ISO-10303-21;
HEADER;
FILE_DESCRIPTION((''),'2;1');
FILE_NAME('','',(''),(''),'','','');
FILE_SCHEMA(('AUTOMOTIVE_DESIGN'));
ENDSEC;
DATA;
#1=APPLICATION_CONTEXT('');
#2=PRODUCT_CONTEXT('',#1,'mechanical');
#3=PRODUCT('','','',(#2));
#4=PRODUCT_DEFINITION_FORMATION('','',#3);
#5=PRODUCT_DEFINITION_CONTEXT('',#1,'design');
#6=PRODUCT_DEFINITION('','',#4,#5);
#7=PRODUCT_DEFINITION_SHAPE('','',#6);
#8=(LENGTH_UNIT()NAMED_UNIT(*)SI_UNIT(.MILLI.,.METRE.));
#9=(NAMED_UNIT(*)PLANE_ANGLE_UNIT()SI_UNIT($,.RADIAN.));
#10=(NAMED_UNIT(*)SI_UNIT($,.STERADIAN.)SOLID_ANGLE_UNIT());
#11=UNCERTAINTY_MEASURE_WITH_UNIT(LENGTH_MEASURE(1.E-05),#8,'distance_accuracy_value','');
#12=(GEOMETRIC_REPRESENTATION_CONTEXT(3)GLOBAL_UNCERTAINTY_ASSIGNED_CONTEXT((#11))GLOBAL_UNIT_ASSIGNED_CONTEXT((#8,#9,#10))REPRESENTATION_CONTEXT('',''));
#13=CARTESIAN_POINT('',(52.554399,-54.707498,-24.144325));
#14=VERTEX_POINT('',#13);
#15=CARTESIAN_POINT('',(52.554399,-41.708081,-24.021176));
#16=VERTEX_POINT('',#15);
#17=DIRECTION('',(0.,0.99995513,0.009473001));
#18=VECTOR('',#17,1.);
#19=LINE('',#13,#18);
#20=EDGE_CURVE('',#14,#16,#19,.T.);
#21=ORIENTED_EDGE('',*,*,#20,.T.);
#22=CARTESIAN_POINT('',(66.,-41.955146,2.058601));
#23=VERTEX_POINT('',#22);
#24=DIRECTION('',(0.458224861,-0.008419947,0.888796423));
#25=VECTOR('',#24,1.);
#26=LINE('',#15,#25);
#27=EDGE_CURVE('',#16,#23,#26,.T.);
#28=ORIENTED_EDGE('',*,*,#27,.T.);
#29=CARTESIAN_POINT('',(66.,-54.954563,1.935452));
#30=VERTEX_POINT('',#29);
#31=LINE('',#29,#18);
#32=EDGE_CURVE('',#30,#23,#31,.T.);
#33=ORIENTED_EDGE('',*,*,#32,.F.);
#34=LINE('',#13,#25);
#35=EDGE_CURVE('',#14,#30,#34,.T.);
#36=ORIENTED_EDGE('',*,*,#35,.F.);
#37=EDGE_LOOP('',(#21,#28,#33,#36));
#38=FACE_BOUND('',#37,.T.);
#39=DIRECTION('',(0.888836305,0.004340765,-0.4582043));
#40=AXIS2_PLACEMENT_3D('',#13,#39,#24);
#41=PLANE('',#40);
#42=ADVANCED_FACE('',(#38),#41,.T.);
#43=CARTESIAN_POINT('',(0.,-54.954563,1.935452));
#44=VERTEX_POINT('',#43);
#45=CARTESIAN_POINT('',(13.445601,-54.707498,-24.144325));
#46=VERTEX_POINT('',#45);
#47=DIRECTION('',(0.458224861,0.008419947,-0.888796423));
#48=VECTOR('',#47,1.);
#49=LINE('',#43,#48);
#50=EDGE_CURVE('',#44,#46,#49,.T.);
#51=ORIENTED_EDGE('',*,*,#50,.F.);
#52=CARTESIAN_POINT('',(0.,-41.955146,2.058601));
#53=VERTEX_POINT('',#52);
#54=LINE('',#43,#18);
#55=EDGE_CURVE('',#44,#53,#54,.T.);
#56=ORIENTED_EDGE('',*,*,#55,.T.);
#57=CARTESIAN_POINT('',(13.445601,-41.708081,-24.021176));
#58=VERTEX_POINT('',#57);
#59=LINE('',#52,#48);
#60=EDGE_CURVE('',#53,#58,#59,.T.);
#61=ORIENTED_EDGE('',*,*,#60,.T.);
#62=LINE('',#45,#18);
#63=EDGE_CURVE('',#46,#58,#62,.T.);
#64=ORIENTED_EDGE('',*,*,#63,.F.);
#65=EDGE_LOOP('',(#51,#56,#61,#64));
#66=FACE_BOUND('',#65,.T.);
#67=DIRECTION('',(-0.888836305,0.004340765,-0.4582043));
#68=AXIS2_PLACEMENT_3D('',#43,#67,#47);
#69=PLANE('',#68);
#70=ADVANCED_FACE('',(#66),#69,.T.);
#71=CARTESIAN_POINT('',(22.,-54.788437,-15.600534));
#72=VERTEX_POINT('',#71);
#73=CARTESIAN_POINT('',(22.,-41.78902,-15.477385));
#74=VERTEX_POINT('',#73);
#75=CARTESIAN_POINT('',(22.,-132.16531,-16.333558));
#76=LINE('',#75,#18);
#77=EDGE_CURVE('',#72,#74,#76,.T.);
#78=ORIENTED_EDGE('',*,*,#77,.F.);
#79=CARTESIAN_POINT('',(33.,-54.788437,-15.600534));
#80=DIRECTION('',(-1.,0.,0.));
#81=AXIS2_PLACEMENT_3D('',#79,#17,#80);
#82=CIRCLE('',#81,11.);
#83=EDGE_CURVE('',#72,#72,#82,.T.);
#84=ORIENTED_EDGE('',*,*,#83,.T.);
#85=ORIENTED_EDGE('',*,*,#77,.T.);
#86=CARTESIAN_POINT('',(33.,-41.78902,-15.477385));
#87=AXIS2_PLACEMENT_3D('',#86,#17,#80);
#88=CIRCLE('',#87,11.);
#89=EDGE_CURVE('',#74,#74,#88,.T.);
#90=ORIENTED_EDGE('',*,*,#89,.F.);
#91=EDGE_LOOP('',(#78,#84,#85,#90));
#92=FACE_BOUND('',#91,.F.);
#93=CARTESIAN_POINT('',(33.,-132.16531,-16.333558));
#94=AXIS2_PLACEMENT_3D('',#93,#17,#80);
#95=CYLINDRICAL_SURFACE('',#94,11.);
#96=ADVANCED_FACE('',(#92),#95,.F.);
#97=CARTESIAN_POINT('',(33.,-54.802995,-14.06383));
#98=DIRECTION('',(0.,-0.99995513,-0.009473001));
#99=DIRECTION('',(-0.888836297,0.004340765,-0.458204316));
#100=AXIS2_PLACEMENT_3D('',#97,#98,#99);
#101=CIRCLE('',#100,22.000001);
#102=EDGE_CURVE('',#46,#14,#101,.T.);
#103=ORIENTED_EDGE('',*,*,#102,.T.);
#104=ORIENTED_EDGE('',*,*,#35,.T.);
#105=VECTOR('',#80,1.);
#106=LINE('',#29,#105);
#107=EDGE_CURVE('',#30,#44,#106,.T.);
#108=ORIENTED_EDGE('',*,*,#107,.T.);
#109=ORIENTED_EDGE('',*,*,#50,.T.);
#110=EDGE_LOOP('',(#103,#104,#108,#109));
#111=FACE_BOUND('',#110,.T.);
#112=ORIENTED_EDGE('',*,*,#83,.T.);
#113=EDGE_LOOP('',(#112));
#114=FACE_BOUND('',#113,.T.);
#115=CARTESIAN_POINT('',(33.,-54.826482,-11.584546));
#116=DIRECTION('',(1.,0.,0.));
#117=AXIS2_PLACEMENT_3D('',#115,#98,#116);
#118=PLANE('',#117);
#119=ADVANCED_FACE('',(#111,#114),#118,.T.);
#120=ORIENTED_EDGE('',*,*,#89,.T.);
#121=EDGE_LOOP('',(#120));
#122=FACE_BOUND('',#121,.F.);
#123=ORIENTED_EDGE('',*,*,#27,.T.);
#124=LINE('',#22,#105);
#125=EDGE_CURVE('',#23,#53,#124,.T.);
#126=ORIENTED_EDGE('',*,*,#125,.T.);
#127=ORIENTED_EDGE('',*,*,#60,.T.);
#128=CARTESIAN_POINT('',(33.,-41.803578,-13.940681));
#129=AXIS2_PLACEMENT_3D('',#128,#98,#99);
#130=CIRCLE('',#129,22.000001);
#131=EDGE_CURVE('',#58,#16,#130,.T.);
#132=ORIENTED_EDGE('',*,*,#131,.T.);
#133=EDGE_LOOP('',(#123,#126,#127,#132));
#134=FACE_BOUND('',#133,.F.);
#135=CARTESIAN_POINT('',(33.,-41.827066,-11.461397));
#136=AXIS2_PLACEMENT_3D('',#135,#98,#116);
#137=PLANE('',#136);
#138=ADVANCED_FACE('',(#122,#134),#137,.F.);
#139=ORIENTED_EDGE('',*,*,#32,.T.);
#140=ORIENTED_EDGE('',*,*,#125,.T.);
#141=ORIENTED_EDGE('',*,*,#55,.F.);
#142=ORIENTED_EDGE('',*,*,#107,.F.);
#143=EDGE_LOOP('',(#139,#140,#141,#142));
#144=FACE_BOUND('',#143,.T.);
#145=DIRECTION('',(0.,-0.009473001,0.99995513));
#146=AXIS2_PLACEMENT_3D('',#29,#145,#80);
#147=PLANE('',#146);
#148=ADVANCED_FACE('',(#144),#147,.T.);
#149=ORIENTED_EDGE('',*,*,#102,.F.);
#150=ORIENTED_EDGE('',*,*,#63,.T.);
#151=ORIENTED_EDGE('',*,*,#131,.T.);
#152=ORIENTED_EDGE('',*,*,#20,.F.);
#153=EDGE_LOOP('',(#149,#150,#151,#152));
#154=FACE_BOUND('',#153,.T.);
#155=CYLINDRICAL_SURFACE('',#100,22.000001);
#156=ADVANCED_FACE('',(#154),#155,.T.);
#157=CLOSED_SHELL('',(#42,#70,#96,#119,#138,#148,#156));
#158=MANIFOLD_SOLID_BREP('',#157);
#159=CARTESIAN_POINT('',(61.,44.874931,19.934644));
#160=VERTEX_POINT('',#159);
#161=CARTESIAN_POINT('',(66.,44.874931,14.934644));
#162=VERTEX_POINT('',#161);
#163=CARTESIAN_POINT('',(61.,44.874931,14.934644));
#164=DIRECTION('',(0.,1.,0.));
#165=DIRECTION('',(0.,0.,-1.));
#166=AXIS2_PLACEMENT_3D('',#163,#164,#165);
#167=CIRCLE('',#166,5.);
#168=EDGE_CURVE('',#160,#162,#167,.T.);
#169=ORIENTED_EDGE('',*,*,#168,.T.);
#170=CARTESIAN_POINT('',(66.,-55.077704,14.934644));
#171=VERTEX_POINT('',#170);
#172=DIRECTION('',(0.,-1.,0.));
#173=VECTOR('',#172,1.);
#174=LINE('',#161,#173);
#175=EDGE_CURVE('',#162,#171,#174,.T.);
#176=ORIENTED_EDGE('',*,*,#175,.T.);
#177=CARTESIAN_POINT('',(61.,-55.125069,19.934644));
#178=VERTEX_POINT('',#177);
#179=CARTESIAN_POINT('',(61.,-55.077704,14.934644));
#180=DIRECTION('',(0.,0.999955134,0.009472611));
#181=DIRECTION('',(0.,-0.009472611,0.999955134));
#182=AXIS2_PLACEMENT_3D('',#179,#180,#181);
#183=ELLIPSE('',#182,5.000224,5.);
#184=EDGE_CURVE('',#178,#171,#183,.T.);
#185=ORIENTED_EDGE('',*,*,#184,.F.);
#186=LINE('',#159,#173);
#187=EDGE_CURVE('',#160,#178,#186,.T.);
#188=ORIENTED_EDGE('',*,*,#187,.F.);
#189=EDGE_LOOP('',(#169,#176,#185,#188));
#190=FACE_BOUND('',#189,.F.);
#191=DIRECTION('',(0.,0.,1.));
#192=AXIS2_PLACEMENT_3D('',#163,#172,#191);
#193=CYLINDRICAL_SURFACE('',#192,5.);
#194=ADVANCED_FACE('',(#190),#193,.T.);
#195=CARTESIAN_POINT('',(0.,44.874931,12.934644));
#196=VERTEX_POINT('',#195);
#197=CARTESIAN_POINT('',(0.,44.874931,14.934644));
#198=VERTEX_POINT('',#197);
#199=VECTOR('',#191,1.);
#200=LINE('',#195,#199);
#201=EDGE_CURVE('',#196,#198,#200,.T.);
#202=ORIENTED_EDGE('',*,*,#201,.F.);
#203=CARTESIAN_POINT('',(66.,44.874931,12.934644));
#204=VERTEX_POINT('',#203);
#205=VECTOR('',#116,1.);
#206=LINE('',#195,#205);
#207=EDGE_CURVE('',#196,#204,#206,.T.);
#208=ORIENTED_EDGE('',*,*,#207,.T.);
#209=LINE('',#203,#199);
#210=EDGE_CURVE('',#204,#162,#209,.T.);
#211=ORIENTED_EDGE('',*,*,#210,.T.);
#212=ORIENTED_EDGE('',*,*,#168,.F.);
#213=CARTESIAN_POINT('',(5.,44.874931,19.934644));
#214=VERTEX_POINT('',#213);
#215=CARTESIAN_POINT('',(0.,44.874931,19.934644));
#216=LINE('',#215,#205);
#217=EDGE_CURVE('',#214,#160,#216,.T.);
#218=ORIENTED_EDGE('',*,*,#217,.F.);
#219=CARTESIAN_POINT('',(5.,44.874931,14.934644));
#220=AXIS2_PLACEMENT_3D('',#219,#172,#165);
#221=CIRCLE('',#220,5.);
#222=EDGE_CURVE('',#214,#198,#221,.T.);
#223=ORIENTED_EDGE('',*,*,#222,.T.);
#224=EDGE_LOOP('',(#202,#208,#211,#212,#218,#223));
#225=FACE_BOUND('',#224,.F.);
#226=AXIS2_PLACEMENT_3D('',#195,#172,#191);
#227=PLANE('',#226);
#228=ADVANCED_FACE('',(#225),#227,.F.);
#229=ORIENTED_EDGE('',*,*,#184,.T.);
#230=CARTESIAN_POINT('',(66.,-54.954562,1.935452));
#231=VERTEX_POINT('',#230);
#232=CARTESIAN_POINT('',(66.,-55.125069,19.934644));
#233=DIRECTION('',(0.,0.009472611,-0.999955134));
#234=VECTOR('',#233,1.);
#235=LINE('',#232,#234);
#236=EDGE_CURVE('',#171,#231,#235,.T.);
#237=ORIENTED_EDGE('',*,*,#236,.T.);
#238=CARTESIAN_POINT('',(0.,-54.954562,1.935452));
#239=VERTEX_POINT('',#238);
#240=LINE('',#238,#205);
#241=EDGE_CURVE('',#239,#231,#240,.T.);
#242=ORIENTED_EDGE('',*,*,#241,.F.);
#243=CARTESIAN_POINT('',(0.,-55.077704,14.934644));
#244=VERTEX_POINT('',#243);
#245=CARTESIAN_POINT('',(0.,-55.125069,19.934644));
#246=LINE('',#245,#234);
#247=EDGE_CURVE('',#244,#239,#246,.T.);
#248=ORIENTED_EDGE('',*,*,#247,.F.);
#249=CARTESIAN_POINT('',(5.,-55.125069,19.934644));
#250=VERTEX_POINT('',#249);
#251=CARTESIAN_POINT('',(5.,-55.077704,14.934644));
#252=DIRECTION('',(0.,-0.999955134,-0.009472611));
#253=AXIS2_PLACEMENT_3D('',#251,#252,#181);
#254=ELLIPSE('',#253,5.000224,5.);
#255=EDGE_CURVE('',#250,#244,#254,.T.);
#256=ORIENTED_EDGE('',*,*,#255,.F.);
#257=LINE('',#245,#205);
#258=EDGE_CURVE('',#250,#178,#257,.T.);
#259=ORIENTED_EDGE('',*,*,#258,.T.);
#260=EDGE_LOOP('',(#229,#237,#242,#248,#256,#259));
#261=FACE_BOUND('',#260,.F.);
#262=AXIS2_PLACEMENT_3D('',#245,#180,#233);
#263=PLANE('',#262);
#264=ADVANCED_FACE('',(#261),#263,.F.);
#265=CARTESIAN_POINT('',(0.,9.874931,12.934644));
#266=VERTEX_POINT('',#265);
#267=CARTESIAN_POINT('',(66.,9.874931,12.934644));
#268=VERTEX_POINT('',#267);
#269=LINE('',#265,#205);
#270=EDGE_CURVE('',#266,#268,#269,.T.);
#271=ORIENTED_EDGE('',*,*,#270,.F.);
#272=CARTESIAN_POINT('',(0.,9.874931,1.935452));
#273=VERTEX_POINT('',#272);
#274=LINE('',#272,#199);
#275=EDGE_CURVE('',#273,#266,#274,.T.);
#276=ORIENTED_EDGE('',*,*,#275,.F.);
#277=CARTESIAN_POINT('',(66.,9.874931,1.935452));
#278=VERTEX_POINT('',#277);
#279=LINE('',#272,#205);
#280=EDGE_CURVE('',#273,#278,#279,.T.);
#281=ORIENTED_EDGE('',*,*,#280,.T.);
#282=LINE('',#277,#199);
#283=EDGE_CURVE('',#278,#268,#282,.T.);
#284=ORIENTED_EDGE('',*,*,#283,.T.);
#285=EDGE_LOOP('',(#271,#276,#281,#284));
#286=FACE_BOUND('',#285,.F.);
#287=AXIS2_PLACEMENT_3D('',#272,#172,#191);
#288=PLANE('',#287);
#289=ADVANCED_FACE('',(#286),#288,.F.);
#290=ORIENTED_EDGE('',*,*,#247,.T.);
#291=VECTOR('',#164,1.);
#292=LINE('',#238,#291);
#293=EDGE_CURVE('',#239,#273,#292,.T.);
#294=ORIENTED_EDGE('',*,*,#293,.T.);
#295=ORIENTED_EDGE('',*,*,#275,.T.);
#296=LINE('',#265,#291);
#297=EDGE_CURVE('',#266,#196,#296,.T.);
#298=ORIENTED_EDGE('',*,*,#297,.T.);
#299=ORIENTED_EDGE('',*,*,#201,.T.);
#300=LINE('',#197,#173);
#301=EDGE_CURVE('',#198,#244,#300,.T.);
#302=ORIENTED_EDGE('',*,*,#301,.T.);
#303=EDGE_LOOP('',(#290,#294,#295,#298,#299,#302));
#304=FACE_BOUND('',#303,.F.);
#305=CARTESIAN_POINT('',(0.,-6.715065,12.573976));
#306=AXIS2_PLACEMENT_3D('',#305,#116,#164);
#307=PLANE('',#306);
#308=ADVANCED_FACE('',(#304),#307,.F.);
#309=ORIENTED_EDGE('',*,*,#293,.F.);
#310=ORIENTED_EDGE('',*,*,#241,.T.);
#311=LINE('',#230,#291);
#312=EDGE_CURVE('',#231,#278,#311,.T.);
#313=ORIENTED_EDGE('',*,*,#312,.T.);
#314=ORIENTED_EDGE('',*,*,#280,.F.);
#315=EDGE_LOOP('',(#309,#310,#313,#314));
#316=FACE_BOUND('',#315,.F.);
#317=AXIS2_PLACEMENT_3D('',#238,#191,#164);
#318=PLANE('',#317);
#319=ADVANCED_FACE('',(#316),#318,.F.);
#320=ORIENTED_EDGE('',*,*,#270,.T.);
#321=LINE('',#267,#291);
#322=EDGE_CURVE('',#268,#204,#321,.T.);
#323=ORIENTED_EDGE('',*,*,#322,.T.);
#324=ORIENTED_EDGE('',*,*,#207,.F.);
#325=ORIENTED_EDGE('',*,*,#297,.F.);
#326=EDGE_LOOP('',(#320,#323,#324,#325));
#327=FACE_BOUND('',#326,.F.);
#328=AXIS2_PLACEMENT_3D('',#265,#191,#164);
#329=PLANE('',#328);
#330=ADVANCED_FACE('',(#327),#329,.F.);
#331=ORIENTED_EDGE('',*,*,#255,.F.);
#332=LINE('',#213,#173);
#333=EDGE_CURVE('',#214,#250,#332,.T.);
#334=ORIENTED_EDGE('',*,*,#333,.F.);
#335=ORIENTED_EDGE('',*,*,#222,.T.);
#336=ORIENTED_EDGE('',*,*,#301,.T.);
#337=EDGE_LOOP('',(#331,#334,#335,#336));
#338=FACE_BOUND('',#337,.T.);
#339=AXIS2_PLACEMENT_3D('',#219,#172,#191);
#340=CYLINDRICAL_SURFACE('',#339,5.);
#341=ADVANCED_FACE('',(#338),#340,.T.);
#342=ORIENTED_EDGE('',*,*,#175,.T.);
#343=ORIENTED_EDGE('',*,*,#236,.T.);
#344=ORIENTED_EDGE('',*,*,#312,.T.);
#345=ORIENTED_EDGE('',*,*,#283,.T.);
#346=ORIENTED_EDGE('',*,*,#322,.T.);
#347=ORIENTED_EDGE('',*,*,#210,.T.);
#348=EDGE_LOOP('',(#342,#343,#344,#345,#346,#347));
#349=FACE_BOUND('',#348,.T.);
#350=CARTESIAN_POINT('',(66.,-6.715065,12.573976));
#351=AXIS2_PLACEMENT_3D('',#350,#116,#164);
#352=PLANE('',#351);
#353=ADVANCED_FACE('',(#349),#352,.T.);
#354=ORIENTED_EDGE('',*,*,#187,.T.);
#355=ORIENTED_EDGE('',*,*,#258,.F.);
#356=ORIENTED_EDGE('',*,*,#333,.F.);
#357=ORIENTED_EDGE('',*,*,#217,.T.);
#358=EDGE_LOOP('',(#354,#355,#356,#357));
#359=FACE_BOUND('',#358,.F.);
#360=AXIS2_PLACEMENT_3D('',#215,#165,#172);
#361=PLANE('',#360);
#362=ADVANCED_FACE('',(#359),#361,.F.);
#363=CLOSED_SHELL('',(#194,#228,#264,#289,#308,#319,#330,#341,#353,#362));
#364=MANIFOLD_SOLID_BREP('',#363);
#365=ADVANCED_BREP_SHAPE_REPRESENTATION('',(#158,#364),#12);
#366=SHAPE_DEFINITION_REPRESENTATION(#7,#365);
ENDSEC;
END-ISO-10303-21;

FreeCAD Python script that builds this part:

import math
import FreeCAD as App
import Part
import Sketcher

V = App.Vector


def edges_at(feature, points):
    """Names of the edges that pass closest to the given points."""
    edges = feature.Shape.Edges
    near = lambda p: min(range(len(edges)), key=lambda i: edges[i].distToShape(Part.Vertex(*p))[0])
    return sorted({f"Edge{near(p) + 1}" for p in points})

doc = App.newDocument("Part")
body = doc.addObject("PartDesign::Body", "Body")

# Sketch on YZ plane
sketch1 = body.newObject("Sketcher::SketchObject", "Sketch")
sketch1.AttachmentSupport = (doc.getObject("YZ_Plane"), [""])
sketch1.MapMode = "FlatFace"
sketch1.addGeometry([
    Part.LineSegment(V(-55, 2, 0), V(10, 2, 0)),  # 0
    Part.LineSegment(V(10, 2, 0), V(10, 13, 0)),  # 1
    Part.LineSegment(V(10, 13, 0), V(45, 13, 0)),  # 2
    Part.LineSegment(V(45, 13, 0), V(45, 20, 0)),  # 3
    Part.LineSegment(V(45, 20, 0), V(-55, 20, 0)),  # 4
    Part.LineSegment(V(-55, 20, 0), V(-55, 2, 0)),  # 5
], False)
sketch1.addConstraint([
    Sketcher.Constraint("Coincident", 0, 2, 1, 1),
    Sketcher.Constraint("Coincident", 1, 2, 2, 1),
    Sketcher.Constraint("Coincident", 2, 2, 3, 1),
    Sketcher.Constraint("Coincident", 3, 2, 4, 1),
    Sketcher.Constraint("Coincident", 4, 2, 5, 1),
    Sketcher.Constraint("Coincident", 5, 2, 0, 1),
    Sketcher.Constraint("Horizontal", 0),
    Sketcher.Constraint("Vertical", 1),
    Sketcher.Constraint("Horizontal", 2),
    Sketcher.Constraint("Vertical", 3),
    Sketcher.Constraint("Horizontal", 4),
    Sketcher.Constraint("DistanceX", 2, 1, 2, 2, 35.0),
    Sketcher.Constraint("DistanceX", 4, 2, 4, 1, 100.0),
    Sketcher.Constraint("DistanceY", 3, 1, 3, 2, 7.0),
    Sketcher.Constraint("Distance", 5, 18.0),
    Sketcher.Constraint("DistanceX", 0, 1, 0, 2, 64.829493),
    Sketcher.Constraint("DistanceX", -1, 1, 0, 2, 9.874931),
    Sketcher.Constraint("DistanceY", -1, 1, 0, 2, 1.935452),
])
pad1 = body.newObject("PartDesign::Pad", "Pad")
pad1.Profile = sketch1
pad1.Length = 66
doc.recompute()

fillet = body.newObject("PartDesign::Fillet", "Fillet")
fillet.Base = (pad1, edges_at(pad1, [(0, -5.125, 19.935), (66, -5.125, 19.935)]))
fillet.Radius = 5
body2 = doc.addObject("PartDesign::Body", "Body001")

# Sketch on an angled plane
sketch2 = body2.newObject("Sketcher::SketchObject", "Sketch001")
sketch2.Placement = App.Placement(V(0, -54.931298, -0.520364), App.Rotation(V(1, 0, 0), V(0, -0.009473001, 0.99995513), V(0, -0.99995513, -0.009473001), "ZXY"))
sketch2.addGeometry([
    Part.LineSegment(V(0, 2, 0), V(13, -24, 0)),
    Part.ArcOfCircle(Part.Circle(V(33, -14, 0), V(0, 0, 1), 22), math.radians(-153), math.radians(-27)),
    Part.LineSegment(V(53, -24, 0), V(66, 2, 0)),
    Part.LineSegment(V(66, 2, 0), V(0, 2, 0)),
], False)
sketch2.addConstraint([
    Sketcher.Constraint("Tangent", 0, 2, 1, 1),
    Sketcher.Constraint("Tangent", 1, 2, 2, 1),
    Sketcher.Constraint("Coincident", 2, 2, 3, 1),
    Sketcher.Constraint("Coincident", 3, 2, 0, 1),
    Sketcher.Constraint("Horizontal", 3),
    Sketcher.Constraint("PointOnObject", 3, 2, -2),
    Sketcher.Constraint("Horizontal", 0, 2, 1, 2),
    Sketcher.Constraint("Radius", 1, 22.000001),
    Sketcher.Constraint("DistanceX", 3, 2, 3, 1, 66.0),
    Sketcher.Constraint("DistanceY", 1, 3, 2, 2, 15.999999),
    Sketcher.Constraint("DistanceY", 0, 2, -1, 1, 23.625021),
])
pad2 = body2.newObject("PartDesign::Pad", "Pad001")
pad2.Profile = sketch2
pad2.Length = 13
pad2.Reversed = True

# Sketch on an angled plane
sketch3 = body2.newObject("Sketcher::SketchObject", "Sketch002")
sketch3.Placement = App.Placement(V(0, -54.931298, -0.520388), App.Rotation(V(1, 0, 0), V(0, -0.009473001, 0.99995513), V(0, -0.99995513, -0.009473001), "ZXY"))
sketch3.addGeometry(Part.Circle(V(33, -15, 0), V(0, 0, 1), 11), False)
sketch3.addConstraint([
    Sketcher.Constraint("Diameter", 0, 22.0),
    Sketcher.Constraint("DistanceX", -1, 1, 0, 3, 33.0),
    Sketcher.Constraint("DistanceY", 0, 3, -1, 1, 15.080823),
])
doc.recompute()
hole = body2.newObject("PartDesign::Hole", "Hole")
hole.Profile = sketch3
hole.ThreadType = "None"
hole.Diameter = 22
hole.DepthType = "ThroughAll"

doc.recompute()
